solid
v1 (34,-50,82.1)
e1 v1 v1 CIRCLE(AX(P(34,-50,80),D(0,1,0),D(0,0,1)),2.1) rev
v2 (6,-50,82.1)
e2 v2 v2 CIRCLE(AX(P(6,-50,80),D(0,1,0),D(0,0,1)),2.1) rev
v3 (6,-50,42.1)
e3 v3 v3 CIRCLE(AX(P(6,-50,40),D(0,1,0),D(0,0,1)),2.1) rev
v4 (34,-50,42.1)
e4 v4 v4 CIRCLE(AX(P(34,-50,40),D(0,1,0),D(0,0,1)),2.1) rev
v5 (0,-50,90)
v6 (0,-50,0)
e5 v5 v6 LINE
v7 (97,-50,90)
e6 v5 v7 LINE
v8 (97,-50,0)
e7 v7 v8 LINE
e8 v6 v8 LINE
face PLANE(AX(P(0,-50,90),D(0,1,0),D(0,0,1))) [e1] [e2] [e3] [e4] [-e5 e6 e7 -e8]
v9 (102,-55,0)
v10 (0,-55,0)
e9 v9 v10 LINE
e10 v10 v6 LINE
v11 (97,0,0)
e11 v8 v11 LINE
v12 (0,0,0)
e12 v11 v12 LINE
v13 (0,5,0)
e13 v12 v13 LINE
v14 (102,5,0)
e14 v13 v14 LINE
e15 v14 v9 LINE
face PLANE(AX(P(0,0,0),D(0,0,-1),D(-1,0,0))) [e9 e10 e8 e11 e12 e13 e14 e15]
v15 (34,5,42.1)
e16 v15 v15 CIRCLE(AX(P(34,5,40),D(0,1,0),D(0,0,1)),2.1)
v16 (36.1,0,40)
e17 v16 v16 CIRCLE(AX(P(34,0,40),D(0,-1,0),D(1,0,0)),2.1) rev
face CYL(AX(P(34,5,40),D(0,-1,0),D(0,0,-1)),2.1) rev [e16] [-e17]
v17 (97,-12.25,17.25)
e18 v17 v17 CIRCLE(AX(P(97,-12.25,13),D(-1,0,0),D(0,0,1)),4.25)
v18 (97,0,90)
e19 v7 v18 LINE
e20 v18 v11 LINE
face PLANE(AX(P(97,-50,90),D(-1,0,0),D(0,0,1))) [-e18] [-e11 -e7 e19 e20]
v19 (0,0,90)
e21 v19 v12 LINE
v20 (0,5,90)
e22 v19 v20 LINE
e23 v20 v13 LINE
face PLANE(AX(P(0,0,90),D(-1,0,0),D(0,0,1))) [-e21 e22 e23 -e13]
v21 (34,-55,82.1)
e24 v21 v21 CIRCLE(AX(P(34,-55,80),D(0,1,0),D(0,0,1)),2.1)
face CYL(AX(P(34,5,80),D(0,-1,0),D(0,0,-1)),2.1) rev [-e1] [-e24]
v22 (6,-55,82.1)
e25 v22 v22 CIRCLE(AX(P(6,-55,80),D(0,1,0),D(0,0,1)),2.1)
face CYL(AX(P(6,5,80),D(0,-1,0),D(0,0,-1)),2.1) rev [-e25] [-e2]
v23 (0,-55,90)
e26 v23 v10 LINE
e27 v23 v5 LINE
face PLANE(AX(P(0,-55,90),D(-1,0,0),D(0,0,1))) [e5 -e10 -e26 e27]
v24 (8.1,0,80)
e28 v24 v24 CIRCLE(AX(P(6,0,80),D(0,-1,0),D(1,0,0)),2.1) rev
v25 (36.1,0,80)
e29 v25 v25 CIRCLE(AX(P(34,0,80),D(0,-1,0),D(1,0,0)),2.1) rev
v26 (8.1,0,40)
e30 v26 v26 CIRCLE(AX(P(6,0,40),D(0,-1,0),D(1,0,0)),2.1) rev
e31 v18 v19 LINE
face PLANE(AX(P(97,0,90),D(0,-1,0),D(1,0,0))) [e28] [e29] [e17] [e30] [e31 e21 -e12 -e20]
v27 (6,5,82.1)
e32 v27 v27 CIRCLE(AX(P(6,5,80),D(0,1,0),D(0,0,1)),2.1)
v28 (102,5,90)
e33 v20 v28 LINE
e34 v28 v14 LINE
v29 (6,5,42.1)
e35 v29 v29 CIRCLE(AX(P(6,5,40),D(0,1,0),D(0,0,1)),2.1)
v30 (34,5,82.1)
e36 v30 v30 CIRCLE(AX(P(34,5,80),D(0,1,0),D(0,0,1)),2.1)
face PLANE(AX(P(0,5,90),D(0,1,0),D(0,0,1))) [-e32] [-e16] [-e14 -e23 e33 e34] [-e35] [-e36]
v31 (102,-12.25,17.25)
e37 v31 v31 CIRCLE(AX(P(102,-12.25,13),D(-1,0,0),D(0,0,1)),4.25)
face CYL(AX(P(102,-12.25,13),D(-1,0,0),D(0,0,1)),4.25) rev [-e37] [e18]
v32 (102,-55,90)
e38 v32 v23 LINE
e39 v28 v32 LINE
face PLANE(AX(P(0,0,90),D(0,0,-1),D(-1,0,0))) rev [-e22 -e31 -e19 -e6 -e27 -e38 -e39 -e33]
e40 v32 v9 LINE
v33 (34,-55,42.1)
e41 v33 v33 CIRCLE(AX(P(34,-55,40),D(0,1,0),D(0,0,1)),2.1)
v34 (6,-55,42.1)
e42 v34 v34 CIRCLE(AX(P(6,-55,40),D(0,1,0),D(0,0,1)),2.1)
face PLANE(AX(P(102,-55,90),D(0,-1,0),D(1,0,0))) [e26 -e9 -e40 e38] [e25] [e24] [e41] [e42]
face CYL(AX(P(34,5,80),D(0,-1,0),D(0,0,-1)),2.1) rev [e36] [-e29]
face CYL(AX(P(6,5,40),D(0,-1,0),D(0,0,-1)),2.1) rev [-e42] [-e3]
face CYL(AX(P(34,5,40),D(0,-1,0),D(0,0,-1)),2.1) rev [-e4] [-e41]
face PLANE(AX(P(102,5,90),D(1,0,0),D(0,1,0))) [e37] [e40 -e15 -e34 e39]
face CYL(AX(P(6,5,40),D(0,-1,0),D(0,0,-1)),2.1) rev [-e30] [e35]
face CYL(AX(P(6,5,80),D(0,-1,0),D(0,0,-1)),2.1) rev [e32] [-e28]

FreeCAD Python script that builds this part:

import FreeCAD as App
import Part
import Sketcher
Q = App.Units.Quantity

doc = App.newDocument("Part")
body = doc.addObject("PartDesign::Body", "Body")

sketch1 = body.newObject("Sketcher::SketchObject", "Sketch")
sketch1.AttachmentSupport = (doc.getObject("XY_Plane"), [""])
sketch1.MapMode = "FlatFace"
sketch1.addGeometry(Part.LineSegment(App.Vector(0, 5, 0), App.Vector(0, 0, 0)), False)
sketch1.addGeometry(Part.LineSegment(App.Vector(0, 0, 0), App.Vector(97, 0, 0)), False)
sketch1.addGeometry(Part.LineSegment(App.Vector(97, 0, 0), App.Vector(97, -50, 0)), False)
sketch1.addGeometry(Part.LineSegment(App.Vector(97, -50, 0), App.Vector(0, -50, 0)), False)
sketch1.addGeometry(Part.LineSegment(App.Vector(0, -50, 0), App.Vector(0, -55, 0)), False)
sketch1.addGeometry(Part.LineSegment(App.Vector(0, -55, 0), App.Vector(102, -55, 0)), False)
sketch1.addGeometry(Part.LineSegment(App.Vector(102, -55, 0), App.Vector(102, 5, 0)), False)
sketch1.addGeometry(Part.LineSegment(App.Vector(102, 5, 0), App.Vector(0, 5, 0)), False)
sketch1.addConstraint(Sketcher.Constraint("Coincident", 0, 2, 1, 1))
sketch1.addConstraint(Sketcher.Constraint("Coincident", 1, 2, 2, 1))
sketch1.addConstraint(Sketcher.Constraint("Coincident", 2, 2, 3, 1))
sketch1.addConstraint(Sketcher.Constraint("Coincident", 3, 2, 4, 1))
sketch1.addConstraint(Sketcher.Constraint("Coincident", 4, 2, 5, 1))
sketch1.addConstraint(Sketcher.Constraint("Coincident", 5, 2, 6, 1))
sketch1.addConstraint(Sketcher.Constraint("Coincident", 6, 2, 7, 1))
sketch1.addConstraint(Sketcher.Constraint("Coincident", 7, 2, 0, 1))
sketch1.addConstraint(Sketcher.Constraint("Vertical", 0))
sketch1.addConstraint(Sketcher.Constraint("Horizontal", 1))
sketch1.addConstraint(Sketcher.Constraint("Vertical", 2))
sketch1.addConstraint(Sketcher.Constraint("Horizontal", 3))
sketch1.addConstraint(Sketcher.Constraint("Vertical", 4))
sketch1.addConstraint(Sketcher.Constraint("Horizontal", 5))
sketch1.addConstraint(Sketcher.Constraint("Vertical", 6))
sketch1.addConstraint(Sketcher.Constraint("Horizontal", 7))
sketch1.addConstraint(Sketcher.Constraint("Coincident", 0, 2, -1, 1))
sketch1.addConstraint(Sketcher.Constraint("PointOnObject", 3, 2, -2))
sketch1.addConstraint(Sketcher.Constraint("Equal", 0, 4))
sketch1.addConstraint(Sketcher.Constraint("DistanceX", 1, 1, 1, 2, Q("97 mm")))
sketch1.addConstraint(Sketcher.Constraint("DistanceX", 5, 1, 5, 2, Q("102 mm")))
sketch1.addConstraint(Sketcher.Constraint("DistanceY", 0, 2, 0, 1, Q("5 mm")))
sketch1.addConstraint(Sketcher.Constraint("DistanceY", 2, 2, 2, 1, Q("50 mm")))
pad1 = body.newObject("PartDesign::Pad", "Pad")
pad1.Profile = sketch1
pad1.Length = 90

sketch2 = body.newObject("Sketcher::SketchObject", "Sketch001")
sketch2.AttachmentSupport = (doc.getObject("XZ_Plane"), [""])
sketch2.MapMode = "FlatFace"
sketch2.addGeometry(Part.Circle(App.Vector(6, 40, 0), App.Vector(0, 0, 1), 2.1), False)
sketch2.addGeometry(Part.Circle(App.Vector(34, 40, 0), App.Vector(0, 0, 1), 2.1), False)
sketch2.addGeometry(Part.Circle(App.Vector(34, 80, 0), App.Vector(0, 0, 1), 2.1), False)
sketch2.addGeometry(Part.Circle(App.Vector(6, 80, 0), App.Vector(0, 0, 1), 2.1), False)
sketch2.addConstraint(Sketcher.Constraint("Equal", 0, 1))
sketch2.addConstraint(Sketcher.Constraint("Equal", 1, 2))
sketch2.addConstraint(Sketcher.Constraint("Equal", 2, 3))
sketch2.addConstraint(Sketcher.Constraint("Horizontal", 0, 3, 1, 3))
sketch2.addConstraint(Sketcher.Constraint("Horizontal", 2, 3, 3, 3))
sketch2.addConstraint(Sketcher.Constraint("Vertical", 1, 3, 2, 3))
sketch2.addConstraint(Sketcher.Constraint("Vertical", 0, 3, 3, 3))
sketch2.addConstraint(Sketcher.Constraint("Diameter", 0, Q("4.2 mm")))
sketch2.addConstraint(Sketcher.Constraint("DistanceX", -1, 1, 0, 3, Q("6 mm")))
sketch2.addConstraint(Sketcher.Constraint("DistanceY", -1, 1, 0, 3, Q("40 mm")))
sketch2.addConstraint(Sketcher.Constraint("DistanceX", -1, 1, 1, 3, Q("34 mm")))
sketch2.addConstraint(Sketcher.Constraint("DistanceY", -1, 1, 2, 3, Q("80 mm")))
pocket1 = body.newObject("PartDesign::Pocket", "Pocket")
pocket1.Profile = sketch2
pocket1.Type = "ThroughAll"
pocket1.Midplane = True

sketch3 = body.newObject("Sketcher::SketchObject", "Sketch002")
sketch3.AttachmentSupport = (doc.getObject("YZ_Plane"), [""])
sketch3.MapMode = "FlatFace"
sketch3.AttachmentOffset = App.Placement(App.Vector(0, 0, 97), App.Rotation())
sketch3.addGeometry(Part.Circle(App.Vector(-12.2, 13, 0), App.Vector(0, 0, 1), 4.2), False)
sketch3.addConstraint(Sketcher.Constraint("Diameter", 0, Q("8.5 mm")))
sketch3.addConstraint(Sketcher.Constraint("DistanceY", -1, 1, 0, 3, Q("13 mm")))
sketch3.addConstraint(Sketcher.Constraint("DistanceX", 0, 3, -1, 1, Q("12.25 mm")))
pocket2 = body.newObject("PartDesign::Pocket", "Pocket001")
pocket2.Profile = sketch3
pocket2.Type = "ThroughAll"
pocket2.Reversed = True

doc.recompute()
